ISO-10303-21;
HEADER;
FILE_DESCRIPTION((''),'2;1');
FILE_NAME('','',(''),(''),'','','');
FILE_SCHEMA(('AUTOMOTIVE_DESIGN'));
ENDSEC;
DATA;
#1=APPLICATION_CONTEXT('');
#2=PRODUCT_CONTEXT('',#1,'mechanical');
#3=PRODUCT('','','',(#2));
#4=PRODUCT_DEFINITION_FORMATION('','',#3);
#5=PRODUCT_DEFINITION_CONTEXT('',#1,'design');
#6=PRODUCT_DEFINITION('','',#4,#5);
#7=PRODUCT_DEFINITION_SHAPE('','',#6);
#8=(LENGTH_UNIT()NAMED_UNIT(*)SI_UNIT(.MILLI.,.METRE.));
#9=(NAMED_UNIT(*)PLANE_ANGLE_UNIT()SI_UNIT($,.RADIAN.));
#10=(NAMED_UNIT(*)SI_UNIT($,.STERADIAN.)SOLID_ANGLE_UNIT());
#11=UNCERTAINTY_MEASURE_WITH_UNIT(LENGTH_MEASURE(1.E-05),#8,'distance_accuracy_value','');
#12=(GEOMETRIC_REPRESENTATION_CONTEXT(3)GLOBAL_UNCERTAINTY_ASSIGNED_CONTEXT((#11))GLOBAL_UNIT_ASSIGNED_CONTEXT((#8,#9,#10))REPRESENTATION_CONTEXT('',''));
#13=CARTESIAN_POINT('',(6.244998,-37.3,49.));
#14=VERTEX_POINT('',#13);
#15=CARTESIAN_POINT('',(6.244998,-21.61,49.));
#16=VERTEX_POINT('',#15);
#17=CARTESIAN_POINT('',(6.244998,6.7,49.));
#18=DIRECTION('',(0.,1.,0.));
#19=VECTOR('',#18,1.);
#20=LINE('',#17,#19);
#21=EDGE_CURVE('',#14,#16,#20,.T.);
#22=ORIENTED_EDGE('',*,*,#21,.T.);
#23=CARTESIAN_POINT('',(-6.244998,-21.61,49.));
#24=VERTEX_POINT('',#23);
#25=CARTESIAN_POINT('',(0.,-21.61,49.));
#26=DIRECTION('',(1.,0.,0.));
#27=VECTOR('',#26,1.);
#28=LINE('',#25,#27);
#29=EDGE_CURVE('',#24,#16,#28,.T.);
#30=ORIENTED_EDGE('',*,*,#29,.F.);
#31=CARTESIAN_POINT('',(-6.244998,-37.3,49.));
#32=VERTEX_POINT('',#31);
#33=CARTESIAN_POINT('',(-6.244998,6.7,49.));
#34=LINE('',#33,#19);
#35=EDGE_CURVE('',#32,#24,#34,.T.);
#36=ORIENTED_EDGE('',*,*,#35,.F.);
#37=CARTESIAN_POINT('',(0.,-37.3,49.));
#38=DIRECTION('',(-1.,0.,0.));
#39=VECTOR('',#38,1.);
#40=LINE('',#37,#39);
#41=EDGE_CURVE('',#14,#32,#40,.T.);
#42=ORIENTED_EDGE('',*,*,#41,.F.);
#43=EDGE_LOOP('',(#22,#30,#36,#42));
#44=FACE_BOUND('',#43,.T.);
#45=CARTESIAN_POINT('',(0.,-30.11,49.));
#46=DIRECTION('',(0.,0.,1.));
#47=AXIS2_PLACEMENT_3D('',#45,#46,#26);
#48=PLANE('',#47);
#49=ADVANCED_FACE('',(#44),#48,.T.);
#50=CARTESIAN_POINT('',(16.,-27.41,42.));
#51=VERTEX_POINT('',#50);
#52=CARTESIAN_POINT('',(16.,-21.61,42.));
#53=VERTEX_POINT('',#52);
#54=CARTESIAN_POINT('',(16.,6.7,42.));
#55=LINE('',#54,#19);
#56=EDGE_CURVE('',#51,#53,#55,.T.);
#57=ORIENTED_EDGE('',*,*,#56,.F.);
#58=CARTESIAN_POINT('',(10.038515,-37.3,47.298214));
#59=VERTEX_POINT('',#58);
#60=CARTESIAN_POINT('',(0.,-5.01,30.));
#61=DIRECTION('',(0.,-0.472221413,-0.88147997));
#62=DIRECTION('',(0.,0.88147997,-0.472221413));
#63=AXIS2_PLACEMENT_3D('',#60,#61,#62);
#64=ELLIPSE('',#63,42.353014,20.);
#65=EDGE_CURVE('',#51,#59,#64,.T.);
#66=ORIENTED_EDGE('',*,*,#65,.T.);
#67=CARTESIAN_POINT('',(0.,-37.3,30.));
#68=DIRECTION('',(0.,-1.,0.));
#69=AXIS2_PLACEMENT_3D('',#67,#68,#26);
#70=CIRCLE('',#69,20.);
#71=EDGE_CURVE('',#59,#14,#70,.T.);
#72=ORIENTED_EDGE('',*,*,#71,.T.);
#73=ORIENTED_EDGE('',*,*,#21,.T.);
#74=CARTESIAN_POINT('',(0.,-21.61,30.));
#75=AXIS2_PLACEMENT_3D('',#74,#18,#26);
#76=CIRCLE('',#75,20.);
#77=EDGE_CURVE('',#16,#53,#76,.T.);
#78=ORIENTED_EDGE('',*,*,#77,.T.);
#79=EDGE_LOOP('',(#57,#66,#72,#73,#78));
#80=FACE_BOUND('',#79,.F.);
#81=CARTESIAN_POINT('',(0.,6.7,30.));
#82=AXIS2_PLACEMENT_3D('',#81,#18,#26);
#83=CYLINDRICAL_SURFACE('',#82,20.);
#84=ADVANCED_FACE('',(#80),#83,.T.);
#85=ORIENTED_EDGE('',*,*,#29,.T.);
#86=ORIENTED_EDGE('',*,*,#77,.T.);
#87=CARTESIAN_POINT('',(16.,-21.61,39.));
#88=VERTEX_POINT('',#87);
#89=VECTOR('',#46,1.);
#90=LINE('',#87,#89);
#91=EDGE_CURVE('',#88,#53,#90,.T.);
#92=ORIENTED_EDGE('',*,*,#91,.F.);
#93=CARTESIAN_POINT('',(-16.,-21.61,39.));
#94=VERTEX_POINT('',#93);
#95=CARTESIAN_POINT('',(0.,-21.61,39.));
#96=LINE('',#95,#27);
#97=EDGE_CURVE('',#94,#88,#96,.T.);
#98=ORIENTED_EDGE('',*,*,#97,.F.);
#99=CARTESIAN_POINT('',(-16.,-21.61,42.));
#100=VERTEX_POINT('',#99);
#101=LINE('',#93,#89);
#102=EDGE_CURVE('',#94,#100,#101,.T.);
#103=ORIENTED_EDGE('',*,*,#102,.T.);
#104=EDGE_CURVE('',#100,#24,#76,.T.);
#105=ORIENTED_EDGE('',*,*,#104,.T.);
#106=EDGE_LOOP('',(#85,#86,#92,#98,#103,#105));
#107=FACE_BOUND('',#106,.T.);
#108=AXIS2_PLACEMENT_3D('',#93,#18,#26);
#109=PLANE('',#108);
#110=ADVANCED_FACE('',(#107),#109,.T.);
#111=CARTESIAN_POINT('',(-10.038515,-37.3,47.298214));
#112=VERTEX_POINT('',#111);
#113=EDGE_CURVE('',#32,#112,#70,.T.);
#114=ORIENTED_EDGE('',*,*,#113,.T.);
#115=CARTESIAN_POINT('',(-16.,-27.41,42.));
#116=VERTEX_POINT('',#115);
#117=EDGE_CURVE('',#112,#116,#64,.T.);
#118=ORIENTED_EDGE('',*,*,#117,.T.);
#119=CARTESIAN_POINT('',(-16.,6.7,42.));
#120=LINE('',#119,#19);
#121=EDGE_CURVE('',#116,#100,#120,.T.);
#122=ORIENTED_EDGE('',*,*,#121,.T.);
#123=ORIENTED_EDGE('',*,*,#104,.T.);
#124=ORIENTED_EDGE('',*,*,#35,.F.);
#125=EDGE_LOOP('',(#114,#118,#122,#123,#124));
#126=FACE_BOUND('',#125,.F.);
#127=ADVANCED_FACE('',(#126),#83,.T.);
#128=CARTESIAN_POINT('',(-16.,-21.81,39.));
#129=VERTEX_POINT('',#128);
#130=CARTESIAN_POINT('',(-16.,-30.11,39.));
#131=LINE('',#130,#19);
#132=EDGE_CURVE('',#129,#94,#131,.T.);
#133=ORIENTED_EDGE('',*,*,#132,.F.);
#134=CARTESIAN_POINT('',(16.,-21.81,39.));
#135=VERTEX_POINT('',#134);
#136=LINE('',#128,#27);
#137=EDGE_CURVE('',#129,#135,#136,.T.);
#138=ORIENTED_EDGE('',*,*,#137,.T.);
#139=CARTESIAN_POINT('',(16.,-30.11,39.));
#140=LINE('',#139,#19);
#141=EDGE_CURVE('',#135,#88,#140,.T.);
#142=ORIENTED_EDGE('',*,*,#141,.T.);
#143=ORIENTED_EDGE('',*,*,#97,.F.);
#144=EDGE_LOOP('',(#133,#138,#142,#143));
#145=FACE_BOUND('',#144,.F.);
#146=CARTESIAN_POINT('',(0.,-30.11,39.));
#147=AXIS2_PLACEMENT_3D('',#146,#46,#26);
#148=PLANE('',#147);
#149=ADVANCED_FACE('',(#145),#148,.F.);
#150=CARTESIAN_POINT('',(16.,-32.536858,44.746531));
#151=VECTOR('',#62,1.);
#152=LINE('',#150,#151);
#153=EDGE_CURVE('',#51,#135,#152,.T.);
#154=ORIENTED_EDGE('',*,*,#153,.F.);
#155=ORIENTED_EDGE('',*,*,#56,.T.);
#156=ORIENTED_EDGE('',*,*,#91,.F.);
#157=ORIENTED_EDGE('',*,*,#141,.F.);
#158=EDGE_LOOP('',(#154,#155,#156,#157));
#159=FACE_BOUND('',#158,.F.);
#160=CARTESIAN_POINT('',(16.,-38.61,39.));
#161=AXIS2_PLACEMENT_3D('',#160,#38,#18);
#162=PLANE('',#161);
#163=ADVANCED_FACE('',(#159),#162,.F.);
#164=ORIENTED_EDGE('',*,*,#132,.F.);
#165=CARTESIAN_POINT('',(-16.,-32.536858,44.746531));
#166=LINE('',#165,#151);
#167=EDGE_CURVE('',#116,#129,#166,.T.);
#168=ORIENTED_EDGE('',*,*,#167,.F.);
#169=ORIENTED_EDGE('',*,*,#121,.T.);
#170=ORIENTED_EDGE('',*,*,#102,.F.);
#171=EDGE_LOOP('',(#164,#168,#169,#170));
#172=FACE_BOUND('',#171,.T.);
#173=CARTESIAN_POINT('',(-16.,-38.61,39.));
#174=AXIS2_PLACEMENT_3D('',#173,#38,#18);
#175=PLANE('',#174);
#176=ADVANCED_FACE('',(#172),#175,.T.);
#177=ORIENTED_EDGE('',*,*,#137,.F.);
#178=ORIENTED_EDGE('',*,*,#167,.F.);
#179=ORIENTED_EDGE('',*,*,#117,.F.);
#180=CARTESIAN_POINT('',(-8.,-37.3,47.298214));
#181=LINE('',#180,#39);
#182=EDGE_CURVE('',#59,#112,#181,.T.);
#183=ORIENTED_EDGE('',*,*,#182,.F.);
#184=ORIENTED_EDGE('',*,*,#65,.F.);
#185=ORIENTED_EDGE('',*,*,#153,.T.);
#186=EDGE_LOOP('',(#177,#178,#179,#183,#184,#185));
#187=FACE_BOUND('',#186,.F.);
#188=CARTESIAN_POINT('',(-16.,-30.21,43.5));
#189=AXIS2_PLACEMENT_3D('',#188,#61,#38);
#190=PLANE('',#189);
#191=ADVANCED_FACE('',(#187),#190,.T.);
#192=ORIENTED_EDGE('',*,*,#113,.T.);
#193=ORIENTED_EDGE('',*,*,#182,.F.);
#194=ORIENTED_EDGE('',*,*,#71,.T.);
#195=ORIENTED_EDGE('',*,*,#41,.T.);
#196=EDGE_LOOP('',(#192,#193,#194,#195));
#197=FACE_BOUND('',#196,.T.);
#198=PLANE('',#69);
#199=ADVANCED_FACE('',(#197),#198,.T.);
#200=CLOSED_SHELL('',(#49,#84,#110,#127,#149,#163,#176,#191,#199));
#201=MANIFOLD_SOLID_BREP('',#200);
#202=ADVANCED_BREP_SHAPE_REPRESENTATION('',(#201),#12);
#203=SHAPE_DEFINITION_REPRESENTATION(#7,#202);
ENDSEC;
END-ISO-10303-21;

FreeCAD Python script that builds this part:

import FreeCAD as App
import Part
import Sketcher

V = App.Vector


def edges_at(feature, points):
    """Names of the edges that pass closest to the given points."""
    edges = feature.Shape.Edges
    near = lambda p: min(range(len(edges)), key=lambda i: edges[i].distToShape(Part.Vertex(*p))[0])
    return sorted({f"Edge{near(p) + 1}" for p in points})

doc = App.newDocument("Part")
params = doc.addObject("Spreadsheet::Sheet", "Params")
for row, (alias, value) in enumerate([
    ("sketch1_width", "32 mm"),
    ("sketch1_height", "17 mm"),
    ("pad1_length", "10 mm"),
    ("chamfer_size", "9 mm"),
    ("chamfer_size2", "16.8 mm"),
    ("sketch2_diameter", "40 mm"),
    ("pad2_length", "44 mm"),
], start=1):
    params.set(f"A{row}", alias)
    params.set(f"B{row}", "=" + value)
    params.setAlias(f"B{row}", alias)

body = doc.addObject("PartDesign::Body", "Body")

# Sketch on XY plane
sketch1 = body.newObject("Sketcher::SketchObject", "Sketch")
sketch1.AttachmentSupport = (doc.getObject("XY_Plane"), [""])
sketch1.MapMode = "FlatFace"
sketch1.AttachmentOffset = App.Placement(V(0, 0, 39), App.Rotation())
sketch1.addGeometry(Part.LineSegment(V(-16, -22, 0), V(-16, -39, 0)), False)
sketch1.addGeometry(Part.LineSegment(V(-16, -39, 0), V(16, -39, 0)), False)
sketch1.addGeometry(Part.LineSegment(V(16, -39, 0), V(16, -22, 0)), False)
sketch1.addGeometry(Part.LineSegment(V(16, -22, 0), V(-16, -22, 0)), False)
sketch1.addConstraint(Sketcher.Constraint("Coincident", 0, 2, 1, 1))
sketch1.addConstraint(Sketcher.Constraint("Coincident", 1, 2, 2, 1))
sketch1.addConstraint(Sketcher.Constraint("Coincident", 2, 2, 3, 1))
sketch1.addConstraint(Sketcher.Constraint("Coincident", 3, 2, 0, 1))
sketch1.addConstraint(Sketcher.Constraint("Vertical", 0))
sketch1.addConstraint(Sketcher.Constraint("Horizontal", 1))
sketch1.addConstraint(Sketcher.Constraint("Vertical", 2))
sketch1.addConstraint(Sketcher.Constraint("Horizontal", 3))
sketch1.addConstraint(Sketcher.Constraint("DistanceX", 1, 1, 1, 2, 32.0))
sketch1.addConstraint(Sketcher.Constraint("DistanceY", 0, 2, 0, 1, 17.0))
sketch1.addConstraint(Sketcher.Constraint("DistanceX", 0, 2, -1, 1, 16.0))
sketch1.addConstraint(Sketcher.Constraint("DistanceY", 0, 2, -1, 1, 38.61))
sketch1.setExpression("Constraints[8]", "Params.sketch1_width")
sketch1.setExpression("Constraints[9]", "Params.sketch1_height")
pad1 = body.newObject("PartDesign::Pad", "Pad")
pad1.Profile = sketch1
pad1.setExpression("Length", "Params.pad1_length")
doc.recompute()

chamfer = body.newObject("PartDesign::Chamfer", "Chamfer")
chamfer.Base = (pad1, edges_at(pad1, [(0, -38.61, 39)]))
chamfer.ChamferType = "Two distances"
chamfer.setExpression("Size", "Params.chamfer_size")
chamfer.setExpression("Size2", "Params.chamfer_size2")
body2 = doc.addObject("PartDesign::Body", "Body001")

# Sketch on XZ plane
sketch2 = body2.newObject("Sketcher::SketchObject", "Sketch001")
sketch2.AttachmentSupport = (doc.getObject("XZ_Plane001"), [""])
sketch2.MapMode = "FlatFace"
sketch2.AttachmentOffset = App.Placement(V(0, 0, -6.7), App.Rotation())
sketch2.addGeometry(Part.Circle(V(0, 30, 0), V(0, 0, 1), 20), False)
sketch2.addConstraint(Sketcher.Constraint("PointOnObject", 0, 3, -2))
sketch2.addConstraint(Sketcher.Constraint("Diameter", 0, 40.0))
sketch2.addConstraint(Sketcher.Constraint("DistanceY", -1, 1, 0, 3, 30.0))
sketch2.setExpression("Constraints[1]", "Params.sketch2_diameter")
pad2 = body2.newObject("PartDesign::Pad", "Pad001")
pad2.Profile = sketch2
pad2.setExpression("Length", "Params.pad2_length")
doc.recompute()

boolean = body2.newObject("PartDesign::Boolean", "Boolean")
boolean.Type = "Common"
boolean.addObjects([body])

doc.recompute()
